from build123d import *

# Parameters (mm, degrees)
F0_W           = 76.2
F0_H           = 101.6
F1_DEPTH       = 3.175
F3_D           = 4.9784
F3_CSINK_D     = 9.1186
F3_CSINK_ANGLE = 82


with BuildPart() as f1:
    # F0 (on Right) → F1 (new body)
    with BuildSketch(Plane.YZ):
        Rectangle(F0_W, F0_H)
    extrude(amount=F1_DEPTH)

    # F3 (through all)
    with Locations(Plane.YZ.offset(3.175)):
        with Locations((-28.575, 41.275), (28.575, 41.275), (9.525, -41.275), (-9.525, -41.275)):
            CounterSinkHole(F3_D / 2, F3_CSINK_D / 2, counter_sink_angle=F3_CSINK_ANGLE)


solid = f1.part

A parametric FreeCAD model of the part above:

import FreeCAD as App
import Part
import Sketcher
from FreeCAD import Vector
Q = App.Units.Quantity


def add_polygon(sketch, points):
    """Adds a closed chain of lines whose ends are joined by coincident constraints."""
    first, n = sketch.GeometryCount, len(points)
    for a, b in zip(points, points[1:] + points[:1]):
        sketch.addGeometry(Part.LineSegment(App.Vector(*a, 0), App.Vector(*b, 0)), False)
    for i in range(n):
        sketch.addConstraint(Sketcher.Constraint("Coincident", first + i, 2, first + (i + 1) % n, 1))

doc = App.newDocument("Part")
body = doc.addObject("PartDesign::Body", "Body")

sketch1 = doc.addObject("Sketcher::SketchObject", "Sketch")
body.addObject(sketch1)
sketch1.AttachmentSupport = (doc.YZ_Plane, [""])
sketch1.MapMode = "FlatFace"
add_polygon(sketch1, [(-38, 51), (-38, -51), (38, -51), (38, 51)])
sketch1.addConstraint(Sketcher.Constraint("Vertical", 0))
sketch1.addConstraint(Sketcher.Constraint("Horizontal", 1))
sketch1.addConstraint(Sketcher.Constraint("Vertical", 2))
sketch1.addConstraint(Sketcher.Constraint("Horizontal", 3))
sketch1.addConstraint(Sketcher.Constraint("Symmetric", 0, 2, 2, 2, -1, 1))
sketch1.addConstraint(Sketcher.Constraint("DistanceX", 1, 1, 1, 2, Q("3 in")))
sketch1.addConstraint(Sketcher.Constraint("DistanceY", 0, 2, 0, 1, Q("4 in")))
pad1 = doc.addObject("PartDesign::Pad", "Pad")
body.addObject(pad1)
pad1.Profile = sketch1
pad1.Length = Q("0.125 in")

sketch2 = doc.addObject("Sketcher::SketchObject", "Sketch001")
body.addObject(sketch2)
sketch2.AttachmentSupport = (doc.YZ_Plane, [""])
sketch2.MapMode = "FlatFace"
sketch2.AttachmentOffset = App.Placement(Vector(0, 0, 0.125 * 25.4), App.Rotation())
sketch2.addGeometry(Part.Circle(Vector(-28.6, 41.3, 0), Vector(0, 0, 1), 2.5), False)
sketch2.addGeometry(Part.Circle(Vector(28.6, 41.3, 0), Vector(0, 0, 1), 2.5), False)
sketch2.addGeometry(Part.Circle(Vector(9.5, -41.3, 0), Vector(0, 0, 1), 2.5), False)
sketch2.addGeometry(Part.Circle(Vector(-9.5, -41.3, 0), Vector(0, 0, 1), 2.5), False)
sketch2.addConstraint(Sketcher.Constraint("Equal", 0, 1))
sketch2.addConstraint(Sketcher.Constraint("Equal", 1, 2))
sketch2.addConstraint(Sketcher.Constraint("Equal", 2, 3))
sketch2.addConstraint(Sketcher.Constraint("Symmetric", 0, 3, 1, 3, -2))
sketch2.addConstraint(Sketcher.Constraint("Symmetric", 2, 3, 3, 3, -2))
sketch2.addConstraint(Sketcher.Constraint("Diameter", 0, Q("0.196 in")))
sketch2.addConstraint(Sketcher.Constraint("DistanceX", 0, 3, 2, 3, Q("1.5 in")))
sketch2.addConstraint(Sketcher.Constraint("DistanceX", 0, 3, 1, 3, Q("2.25 in")))
sketch2.addConstraint(Sketcher.Constraint("DistanceY", 2, 3, 1, 3, Q("3.25 in")))
sketch2.addConstraint(Sketcher.Constraint("DistanceY", -1, 1, 0, 3, Q("1.625 in")))
doc.recompute()
hole = doc.addObject("PartDesign::Hole", "Hole")
body.addObject(hole)
hole.Profile = sketch2
hole.ThreadType = "None"
hole.Diameter = Q("0.196 in")
hole.DepthType = "ThroughAll"
hole.HoleCutType = "Countersink"
hole.HoleCutDiameter = Q("0.359 in")
hole.HoleCutCountersinkAngle = 82

doc.recompute()
